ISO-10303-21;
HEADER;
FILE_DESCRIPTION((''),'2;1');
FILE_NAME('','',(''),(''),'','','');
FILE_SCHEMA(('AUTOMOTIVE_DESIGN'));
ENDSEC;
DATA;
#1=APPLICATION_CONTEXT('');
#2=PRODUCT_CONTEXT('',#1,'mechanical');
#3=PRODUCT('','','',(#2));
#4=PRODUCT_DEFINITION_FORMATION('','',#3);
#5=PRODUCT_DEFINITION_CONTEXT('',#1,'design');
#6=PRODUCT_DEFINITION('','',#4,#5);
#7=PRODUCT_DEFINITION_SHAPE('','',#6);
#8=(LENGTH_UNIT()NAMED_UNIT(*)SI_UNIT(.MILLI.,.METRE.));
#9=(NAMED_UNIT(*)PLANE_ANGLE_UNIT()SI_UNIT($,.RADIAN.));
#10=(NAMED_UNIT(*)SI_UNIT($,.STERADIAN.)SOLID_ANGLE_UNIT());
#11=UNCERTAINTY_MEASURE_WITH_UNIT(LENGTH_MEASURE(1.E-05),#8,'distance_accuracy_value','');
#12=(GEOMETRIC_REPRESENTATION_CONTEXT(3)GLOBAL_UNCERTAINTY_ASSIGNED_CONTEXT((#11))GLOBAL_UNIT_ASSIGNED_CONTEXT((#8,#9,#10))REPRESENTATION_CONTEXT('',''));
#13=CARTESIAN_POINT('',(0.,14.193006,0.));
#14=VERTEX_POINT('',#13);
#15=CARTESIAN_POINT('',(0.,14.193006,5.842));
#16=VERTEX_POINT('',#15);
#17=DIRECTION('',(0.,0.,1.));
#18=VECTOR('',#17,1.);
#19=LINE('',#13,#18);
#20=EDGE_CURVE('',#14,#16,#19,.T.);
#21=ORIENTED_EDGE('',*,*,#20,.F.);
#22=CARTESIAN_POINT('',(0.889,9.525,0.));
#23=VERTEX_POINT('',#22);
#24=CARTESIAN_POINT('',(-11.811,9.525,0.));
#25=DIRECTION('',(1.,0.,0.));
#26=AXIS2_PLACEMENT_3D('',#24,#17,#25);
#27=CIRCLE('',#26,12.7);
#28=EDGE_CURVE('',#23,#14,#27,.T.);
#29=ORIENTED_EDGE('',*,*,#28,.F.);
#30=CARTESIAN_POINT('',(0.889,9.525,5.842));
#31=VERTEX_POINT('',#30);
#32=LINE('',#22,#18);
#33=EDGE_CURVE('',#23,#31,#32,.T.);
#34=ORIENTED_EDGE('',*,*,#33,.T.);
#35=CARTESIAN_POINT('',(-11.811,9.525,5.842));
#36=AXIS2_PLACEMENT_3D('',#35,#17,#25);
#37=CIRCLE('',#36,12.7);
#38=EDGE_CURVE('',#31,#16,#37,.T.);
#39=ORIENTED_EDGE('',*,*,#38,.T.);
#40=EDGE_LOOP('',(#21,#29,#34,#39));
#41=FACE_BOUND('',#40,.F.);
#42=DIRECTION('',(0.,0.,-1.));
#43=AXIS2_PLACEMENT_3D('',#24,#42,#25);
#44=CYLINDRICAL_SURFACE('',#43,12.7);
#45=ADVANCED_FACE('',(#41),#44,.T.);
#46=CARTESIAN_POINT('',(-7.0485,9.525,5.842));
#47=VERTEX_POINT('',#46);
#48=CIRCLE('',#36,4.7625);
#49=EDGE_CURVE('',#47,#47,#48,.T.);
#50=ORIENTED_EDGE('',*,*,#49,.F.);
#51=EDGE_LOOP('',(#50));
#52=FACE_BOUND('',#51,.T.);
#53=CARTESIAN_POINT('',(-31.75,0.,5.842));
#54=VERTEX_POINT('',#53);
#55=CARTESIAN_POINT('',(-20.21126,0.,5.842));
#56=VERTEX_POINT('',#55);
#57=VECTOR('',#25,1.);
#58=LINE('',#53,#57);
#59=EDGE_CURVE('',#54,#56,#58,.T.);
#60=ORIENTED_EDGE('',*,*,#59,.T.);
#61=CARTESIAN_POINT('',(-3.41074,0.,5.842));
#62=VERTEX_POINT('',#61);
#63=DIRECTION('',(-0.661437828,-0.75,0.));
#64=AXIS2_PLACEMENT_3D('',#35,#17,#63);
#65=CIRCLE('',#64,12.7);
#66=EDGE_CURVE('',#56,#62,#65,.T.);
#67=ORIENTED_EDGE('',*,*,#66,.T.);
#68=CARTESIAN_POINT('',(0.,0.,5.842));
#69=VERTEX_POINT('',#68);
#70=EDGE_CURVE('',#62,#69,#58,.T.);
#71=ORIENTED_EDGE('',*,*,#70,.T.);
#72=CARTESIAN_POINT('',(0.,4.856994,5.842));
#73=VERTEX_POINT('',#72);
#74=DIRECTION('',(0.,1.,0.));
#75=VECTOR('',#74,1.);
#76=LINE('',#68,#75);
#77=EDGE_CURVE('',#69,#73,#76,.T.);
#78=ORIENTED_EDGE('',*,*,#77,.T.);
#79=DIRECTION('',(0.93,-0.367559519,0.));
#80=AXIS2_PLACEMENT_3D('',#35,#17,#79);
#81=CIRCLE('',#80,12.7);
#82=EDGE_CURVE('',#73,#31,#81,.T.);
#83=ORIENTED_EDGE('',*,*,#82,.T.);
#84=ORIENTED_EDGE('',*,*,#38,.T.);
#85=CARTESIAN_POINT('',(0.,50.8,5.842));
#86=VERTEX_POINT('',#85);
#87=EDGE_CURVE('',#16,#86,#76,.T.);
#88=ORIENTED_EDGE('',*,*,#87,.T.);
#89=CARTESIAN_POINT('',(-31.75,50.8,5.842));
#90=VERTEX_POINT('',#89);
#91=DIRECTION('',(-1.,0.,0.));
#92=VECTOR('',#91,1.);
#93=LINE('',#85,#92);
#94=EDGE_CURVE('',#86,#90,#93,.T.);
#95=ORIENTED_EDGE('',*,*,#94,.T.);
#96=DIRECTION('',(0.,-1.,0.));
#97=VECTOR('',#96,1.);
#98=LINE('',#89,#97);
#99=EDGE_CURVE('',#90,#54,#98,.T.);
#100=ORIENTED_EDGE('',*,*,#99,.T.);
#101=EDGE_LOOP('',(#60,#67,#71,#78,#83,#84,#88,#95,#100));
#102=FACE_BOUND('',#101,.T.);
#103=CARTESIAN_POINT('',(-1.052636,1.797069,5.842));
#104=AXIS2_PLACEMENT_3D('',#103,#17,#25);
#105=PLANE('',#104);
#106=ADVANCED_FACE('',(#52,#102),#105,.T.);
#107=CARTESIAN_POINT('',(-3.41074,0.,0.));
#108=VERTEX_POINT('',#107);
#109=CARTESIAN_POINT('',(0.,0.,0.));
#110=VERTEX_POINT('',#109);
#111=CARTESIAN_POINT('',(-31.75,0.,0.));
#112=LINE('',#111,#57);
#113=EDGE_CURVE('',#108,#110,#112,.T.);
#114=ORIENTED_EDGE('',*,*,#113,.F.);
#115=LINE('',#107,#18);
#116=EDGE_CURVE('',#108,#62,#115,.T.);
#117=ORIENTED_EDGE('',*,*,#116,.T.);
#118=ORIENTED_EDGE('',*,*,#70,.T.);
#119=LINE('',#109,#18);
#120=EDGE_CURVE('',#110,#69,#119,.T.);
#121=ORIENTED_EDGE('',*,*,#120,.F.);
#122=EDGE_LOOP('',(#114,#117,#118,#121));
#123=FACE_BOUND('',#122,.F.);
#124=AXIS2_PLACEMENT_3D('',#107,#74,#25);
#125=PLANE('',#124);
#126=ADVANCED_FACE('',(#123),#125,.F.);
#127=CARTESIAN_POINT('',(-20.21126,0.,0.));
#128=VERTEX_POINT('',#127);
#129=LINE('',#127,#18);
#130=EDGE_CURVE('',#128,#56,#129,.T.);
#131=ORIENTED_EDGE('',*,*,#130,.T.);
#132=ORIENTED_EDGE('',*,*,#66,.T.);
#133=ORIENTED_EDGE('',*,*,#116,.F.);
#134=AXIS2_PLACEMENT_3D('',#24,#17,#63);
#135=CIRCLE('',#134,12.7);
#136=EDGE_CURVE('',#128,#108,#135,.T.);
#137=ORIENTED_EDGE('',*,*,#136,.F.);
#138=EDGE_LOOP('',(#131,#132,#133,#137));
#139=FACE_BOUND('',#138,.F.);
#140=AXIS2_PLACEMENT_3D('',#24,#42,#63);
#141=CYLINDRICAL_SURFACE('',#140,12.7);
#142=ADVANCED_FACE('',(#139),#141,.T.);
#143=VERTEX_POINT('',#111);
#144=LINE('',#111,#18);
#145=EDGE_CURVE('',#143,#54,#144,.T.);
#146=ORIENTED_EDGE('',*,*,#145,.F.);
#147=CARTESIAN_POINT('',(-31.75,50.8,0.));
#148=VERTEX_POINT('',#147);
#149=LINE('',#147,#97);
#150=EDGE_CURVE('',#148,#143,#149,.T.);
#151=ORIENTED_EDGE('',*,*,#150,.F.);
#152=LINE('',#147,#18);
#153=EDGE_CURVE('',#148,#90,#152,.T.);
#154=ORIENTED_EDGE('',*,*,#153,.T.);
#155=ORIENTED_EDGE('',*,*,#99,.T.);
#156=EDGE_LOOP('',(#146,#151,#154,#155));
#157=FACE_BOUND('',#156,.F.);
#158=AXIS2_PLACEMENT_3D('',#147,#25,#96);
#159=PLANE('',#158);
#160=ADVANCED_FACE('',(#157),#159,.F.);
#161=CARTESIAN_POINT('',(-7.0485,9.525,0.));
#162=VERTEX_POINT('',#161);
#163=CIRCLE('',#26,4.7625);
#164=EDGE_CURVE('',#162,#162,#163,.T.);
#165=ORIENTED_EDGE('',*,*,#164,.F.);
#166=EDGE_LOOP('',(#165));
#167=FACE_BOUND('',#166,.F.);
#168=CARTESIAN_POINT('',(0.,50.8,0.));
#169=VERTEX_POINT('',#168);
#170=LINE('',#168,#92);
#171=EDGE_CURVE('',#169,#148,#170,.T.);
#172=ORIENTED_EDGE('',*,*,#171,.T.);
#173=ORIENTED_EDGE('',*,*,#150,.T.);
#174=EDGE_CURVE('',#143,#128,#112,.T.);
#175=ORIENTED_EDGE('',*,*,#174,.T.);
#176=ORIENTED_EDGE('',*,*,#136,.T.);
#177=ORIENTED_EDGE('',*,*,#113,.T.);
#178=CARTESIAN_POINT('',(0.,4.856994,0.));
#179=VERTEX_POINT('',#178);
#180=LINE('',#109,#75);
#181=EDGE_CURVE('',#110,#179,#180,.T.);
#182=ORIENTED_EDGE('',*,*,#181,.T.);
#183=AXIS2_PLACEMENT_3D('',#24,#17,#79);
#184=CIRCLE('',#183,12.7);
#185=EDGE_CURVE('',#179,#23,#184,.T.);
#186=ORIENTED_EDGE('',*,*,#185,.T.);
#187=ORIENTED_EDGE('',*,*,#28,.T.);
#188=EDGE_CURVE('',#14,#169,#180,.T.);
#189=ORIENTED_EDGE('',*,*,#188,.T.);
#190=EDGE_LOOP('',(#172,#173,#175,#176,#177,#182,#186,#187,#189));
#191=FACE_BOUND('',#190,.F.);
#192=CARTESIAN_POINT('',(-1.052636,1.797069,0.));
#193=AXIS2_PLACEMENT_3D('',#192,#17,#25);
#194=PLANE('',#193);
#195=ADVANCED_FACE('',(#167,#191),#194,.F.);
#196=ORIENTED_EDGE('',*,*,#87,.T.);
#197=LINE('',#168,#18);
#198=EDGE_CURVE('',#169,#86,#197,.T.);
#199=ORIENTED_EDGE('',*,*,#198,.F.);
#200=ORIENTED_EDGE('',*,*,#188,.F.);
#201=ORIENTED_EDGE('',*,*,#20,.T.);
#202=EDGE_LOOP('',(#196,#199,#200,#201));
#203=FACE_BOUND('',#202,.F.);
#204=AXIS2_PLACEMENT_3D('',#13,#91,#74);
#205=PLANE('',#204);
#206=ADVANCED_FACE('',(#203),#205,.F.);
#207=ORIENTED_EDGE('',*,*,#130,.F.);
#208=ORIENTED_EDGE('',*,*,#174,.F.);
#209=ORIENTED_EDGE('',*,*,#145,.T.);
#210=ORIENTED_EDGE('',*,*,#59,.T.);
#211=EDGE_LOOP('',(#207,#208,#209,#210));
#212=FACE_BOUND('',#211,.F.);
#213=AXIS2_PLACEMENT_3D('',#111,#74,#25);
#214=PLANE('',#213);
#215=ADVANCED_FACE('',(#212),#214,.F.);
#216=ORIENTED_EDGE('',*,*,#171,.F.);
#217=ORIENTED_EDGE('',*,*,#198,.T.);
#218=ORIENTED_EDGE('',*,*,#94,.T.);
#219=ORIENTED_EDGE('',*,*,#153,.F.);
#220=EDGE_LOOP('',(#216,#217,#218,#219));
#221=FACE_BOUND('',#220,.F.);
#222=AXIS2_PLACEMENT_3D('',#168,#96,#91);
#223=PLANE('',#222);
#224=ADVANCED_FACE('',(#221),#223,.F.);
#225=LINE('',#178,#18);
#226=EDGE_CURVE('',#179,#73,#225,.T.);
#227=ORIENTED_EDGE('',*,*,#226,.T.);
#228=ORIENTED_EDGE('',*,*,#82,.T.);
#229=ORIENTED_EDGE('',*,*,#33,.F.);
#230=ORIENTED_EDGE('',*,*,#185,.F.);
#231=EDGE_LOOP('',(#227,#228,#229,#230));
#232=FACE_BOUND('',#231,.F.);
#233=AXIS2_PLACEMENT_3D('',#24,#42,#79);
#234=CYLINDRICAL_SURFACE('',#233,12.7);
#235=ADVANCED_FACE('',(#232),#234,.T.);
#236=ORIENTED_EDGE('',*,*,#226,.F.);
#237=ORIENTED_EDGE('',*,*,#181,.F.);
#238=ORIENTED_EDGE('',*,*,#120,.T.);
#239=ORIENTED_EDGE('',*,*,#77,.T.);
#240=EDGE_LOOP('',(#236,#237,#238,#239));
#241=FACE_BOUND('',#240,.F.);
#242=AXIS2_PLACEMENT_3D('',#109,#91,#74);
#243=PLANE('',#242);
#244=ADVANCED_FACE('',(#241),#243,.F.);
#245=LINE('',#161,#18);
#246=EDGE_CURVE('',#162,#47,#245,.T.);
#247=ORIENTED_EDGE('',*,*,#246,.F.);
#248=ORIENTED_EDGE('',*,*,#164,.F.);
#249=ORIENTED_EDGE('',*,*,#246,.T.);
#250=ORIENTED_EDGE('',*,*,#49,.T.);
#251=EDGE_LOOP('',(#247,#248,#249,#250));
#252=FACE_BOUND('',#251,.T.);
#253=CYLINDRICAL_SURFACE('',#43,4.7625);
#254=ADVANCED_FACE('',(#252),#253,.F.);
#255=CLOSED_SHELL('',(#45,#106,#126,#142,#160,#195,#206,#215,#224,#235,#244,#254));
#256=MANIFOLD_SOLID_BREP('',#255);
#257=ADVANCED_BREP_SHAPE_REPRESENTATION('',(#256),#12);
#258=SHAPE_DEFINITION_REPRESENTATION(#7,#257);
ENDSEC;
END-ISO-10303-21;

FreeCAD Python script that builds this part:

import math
import FreeCAD as App
import Part
import Sketcher

V = App.Vector
Q = App.Units.Quantity

doc = App.newDocument("Part")
body = doc.addObject("PartDesign::Body", "Body")

# Sketch on XY plane
sketch1 = body.newObject("Sketcher::SketchObject", "Sketch")
sketch1.AttachmentSupport = (doc.getObject("XY_Plane"), [""])
sketch1.MapMode = "FlatFace"
sketch1.addGeometry(Part.LineSegment(V(0, 0, 0), V(0, 4.9, 0)), False)
sketch1.addGeometry(Part.ArcOfCircle(Part.Circle(V(-11.8, 9.5, 0), V(0, 0, 1), 12.7), math.radians(-22), math.radians(0)), False)
sketch1.addGeometry(Part.ArcOfCircle(Part.Circle(V(-11.8, 9.5, 0), V(0, 0, 1), 12.7), math.radians(0), math.radians(22)), False)
sketch1.addGeometry(Part.LineSegment(V(0, 14.2, 0), V(0, 50.8, 0)), False)
sketch1.addGeometry(Part.LineSegment(V(0, 50.8, 0), V(-31.8, 50.8, 0)), False)
sketch1.addGeometry(Part.LineSegment(V(-31.8, 50.8, 0), V(-31.8, 0, 0)), False)
sketch1.addGeometry(Part.LineSegment(V(-31.8, 0, 0), V(-20.2, 0, 0)), False)
sketch1.addGeometry(Part.ArcOfCircle(Part.Circle(V(-11.8, 9.5, 0), V(0, 0, 1), 12.7), math.radians(-131), math.radians(-49)), False)
sketch1.addGeometry(Part.LineSegment(V(-3.4, 0, 0), V(0, 0, 0)), False)
sketch1.addGeometry(Part.Circle(V(-11.8, 9.5, 0), V(0, 0, 1), 4.8), False)
sketch1.addConstraint(Sketcher.Constraint("Coincident", 0, 2, 1, 1))
sketch1.addConstraint(Sketcher.Constraint("Tangent", 1, 2, 2, 1))
sketch1.addConstraint(Sketcher.Constraint("Coincident", 2, 2, 3, 1))
sketch1.addConstraint(Sketcher.Constraint("Coincident", 3, 2, 4, 1))
sketch1.addConstraint(Sketcher.Constraint("Coincident", 4, 2, 5, 1))
sketch1.addConstraint(Sketcher.Constraint("Coincident", 5, 2, 6, 1))
sketch1.addConstraint(Sketcher.Constraint("Coincident", 6, 2, 7, 1))
sketch1.addConstraint(Sketcher.Constraint("Coincident", 7, 2, 8, 1))
sketch1.addConstraint(Sketcher.Constraint("Coincident", 8, 2, 0, 1))
sketch1.addConstraint(Sketcher.Constraint("Vertical", 0))
sketch1.addConstraint(Sketcher.Constraint("Vertical", 3))
sketch1.addConstraint(Sketcher.Constraint("Horizontal", 4))
sketch1.addConstraint(Sketcher.Constraint("Vertical", 5))
sketch1.addConstraint(Sketcher.Constraint("Horizontal", 6))
sketch1.addConstraint(Sketcher.Constraint("Horizontal", 8))
sketch1.addConstraint(Sketcher.Constraint("Coincident", 8, 2, -1, 1))
sketch1.addConstraint(Sketcher.Constraint("Coincident", 7, 3, 1, 3))
sketch1.addConstraint(Sketcher.Constraint("Coincident", 9, 3, 1, 3))
sketch1.addConstraint(Sketcher.Constraint("Equal", 1, 2))
sketch1.addConstraint(Sketcher.Constraint("Equal", 2, 7))
sketch1.addConstraint(Sketcher.Constraint("PointOnObject", 2, 2, -2))
sketch1.addConstraint(Sketcher.Constraint("PointOnObject", 5, 2, -1))
sketch1.addConstraint(Sketcher.Constraint("Horizontal", 9, 3, 1, 2))
sketch1.addConstraint(Sketcher.Constraint("Radius", 1, Q("0.5 in")))
sketch1.addConstraint(Sketcher.Constraint("DistanceY", 5, 2, 5, 1, Q("2 in")))
sketch1.addConstraint(Sketcher.Constraint("Diameter", 9, Q("0.375 in")))
sketch1.addConstraint(Sketcher.Constraint("DistanceX", 4, 2, 4, 1, Q("1.25 in")))
sketch1.addConstraint(Sketcher.Constraint("DistanceX", 1, 3, -1, 1, Q("0.465 in")))
sketch1.addConstraint(Sketcher.Constraint("DistanceY", -1, 1, 1, 3, Q("0.375 in")))
pad1 = body.newObject("PartDesign::Pad", "Pad")
pad1.Profile = sketch1
pad1.Length = Q("0.23 in")

doc.recompute()
